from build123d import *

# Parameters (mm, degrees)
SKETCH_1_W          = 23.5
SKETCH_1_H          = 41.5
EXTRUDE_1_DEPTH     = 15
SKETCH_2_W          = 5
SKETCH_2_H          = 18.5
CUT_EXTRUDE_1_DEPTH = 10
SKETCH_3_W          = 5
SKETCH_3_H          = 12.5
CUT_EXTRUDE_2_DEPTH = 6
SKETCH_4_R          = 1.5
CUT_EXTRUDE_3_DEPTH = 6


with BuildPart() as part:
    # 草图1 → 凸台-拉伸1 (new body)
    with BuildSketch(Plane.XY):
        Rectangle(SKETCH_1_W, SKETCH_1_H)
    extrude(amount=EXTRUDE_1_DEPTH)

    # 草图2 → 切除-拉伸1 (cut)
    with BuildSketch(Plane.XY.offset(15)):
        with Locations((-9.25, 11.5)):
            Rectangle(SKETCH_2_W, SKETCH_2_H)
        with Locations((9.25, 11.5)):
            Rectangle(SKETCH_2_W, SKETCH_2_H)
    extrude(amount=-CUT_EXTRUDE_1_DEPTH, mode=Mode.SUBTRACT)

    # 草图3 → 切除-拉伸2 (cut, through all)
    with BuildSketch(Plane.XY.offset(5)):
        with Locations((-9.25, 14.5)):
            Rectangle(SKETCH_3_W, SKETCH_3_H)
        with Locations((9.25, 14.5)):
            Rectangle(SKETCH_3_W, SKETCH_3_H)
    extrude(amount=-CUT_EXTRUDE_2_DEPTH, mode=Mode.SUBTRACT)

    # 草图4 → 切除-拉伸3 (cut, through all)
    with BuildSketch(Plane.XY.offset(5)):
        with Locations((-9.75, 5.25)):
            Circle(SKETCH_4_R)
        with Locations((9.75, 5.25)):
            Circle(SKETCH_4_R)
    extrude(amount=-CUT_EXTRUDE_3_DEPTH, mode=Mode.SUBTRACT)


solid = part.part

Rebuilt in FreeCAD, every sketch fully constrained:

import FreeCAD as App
import Part
import Sketcher
Q = App.Units.Quantity


def add_polygon(sketch, points):
    """Adds a closed chain of lines whose ends are joined by coincident constraints."""
    first, n = sketch.GeometryCount, len(points)
    for a, b in zip(points, points[1:] + points[:1]):
        sketch.addGeometry(Part.LineSegment(App.Vector(*a, 0), App.Vector(*b, 0)), False)
    for i in range(n):
        sketch.addConstraint(Sketcher.Constraint("Coincident", first + i, 2, first + (i + 1) % n, 1))

doc = App.newDocument("Part")
body = doc.addObject("PartDesign::Body", "Body")

sketch1 = doc.addObject("Sketcher::SketchObject", "Sketch")
body.addObject(sketch1)
sketch1.AttachmentSupport = (doc.XY_Plane, [""])
sketch1.MapMode = "FlatFace"
add_polygon(sketch1, [(-12, 21), (-12, -21), (12, -21), (12, 21)])
sketch1.addConstraint([
    Sketcher.Constraint("Vertical", 0),
    Sketcher.Constraint("Horizontal", 1),
    Sketcher.Constraint("Vertical", 2),
    Sketcher.Constraint("Horizontal", 3),
    Sketcher.Constraint("Symmetric", 0, 2, 2, 2, -1, 1),
    Sketcher.Constraint("DistanceX", 1, 1, 1, 2, Q("23.5 mm")),
    Sketcher.Constraint("DistanceY", 0, 2, 0, 1, Q("41.5 mm")),
])
pad1 = doc.addObject("PartDesign::Pad", "Pad")
body.addObject(pad1)
pad1.Profile = sketch1
pad1.Length = 15

sketch2 = doc.addObject("Sketcher::SketchObject", "Sketch001")
body.addObject(sketch2)
sketch2.AttachmentSupport = (doc.XY_Plane, [""])
sketch2.MapMode = "FlatFace"
sketch2.AttachmentOffset = App.Placement(App.Vector(0, 0, 15), App.Rotation())
add_polygon(sketch2, [(-12, 21), (-12, 2), (-7, 2), (-7, 21)])
add_polygon(sketch2, [(7, 21), (7, 2), (12, 2), (12, 21)])
sketch2.addConstraint([
    Sketcher.Constraint("Vertical", 0),
    Sketcher.Constraint("Horizontal", 1),
    Sketcher.Constraint("Vertical", 2),
    Sketcher.Constraint("Horizontal", 3),
    Sketcher.Constraint("Vertical", 4),
    Sketcher.Constraint("Horizontal", 5),
    Sketcher.Constraint("Vertical", 6),
    Sketcher.Constraint("Horizontal", 7),
    Sketcher.Constraint("Symmetric", 1, 2, 4, 2, -2),
    Sketcher.Constraint("Symmetric", 3, 2, 6, 2, -2),
    Sketcher.Constraint("DistanceX", 1, 1, 1, 2, Q("5 mm")),
    Sketcher.Constraint("DistanceY", 0, 2, 0, 1, Q("18.5 mm")),
    Sketcher.Constraint("DistanceX", 1, 2, 4, 2, Q("13.5 mm")),
    Sketcher.Constraint("DistanceY", -1, 1, 0, 2, Q("2.25 mm")),
])
pocket1 = doc.addObject("PartDesign::Pocket", "Pocket")
body.addObject(pocket1)
pocket1.Profile = sketch2
pocket1.Length = 10

sketch3 = doc.addObject("Sketcher::SketchObject", "Sketch002")
body.addObject(sketch3)
sketch3.AttachmentSupport = (doc.XY_Plane, [""])
sketch3.MapMode = "FlatFace"
sketch3.AttachmentOffset = App.Placement(App.Vector(0, 0, 5), App.Rotation())
add_polygon(sketch3, [(-12, 21), (-12, 8), (-7, 8), (-7, 21)])
add_polygon(sketch3, [(7, 21), (7, 8), (12, 8), (12, 21)])
sketch3.addConstraint([
    Sketcher.Constraint("Vertical", 0),
    Sketcher.Constraint("Horizontal", 1),
    Sketcher.Constraint("Vertical", 2),
    Sketcher.Constraint("Horizontal", 3),
    Sketcher.Constraint("Vertical", 4),
    Sketcher.Constraint("Horizontal", 5),
    Sketcher.Constraint("Vertical", 6),
    Sketcher.Constraint("Horizontal", 7),
    Sketcher.Constraint("Symmetric", 1, 2, 4, 2, -2),
    Sketcher.Constraint("Symmetric", 3, 2, 6, 2, -2),
    Sketcher.Constraint("DistanceX", 1, 1, 1, 2, Q("5 mm")),
    Sketcher.Constraint("DistanceY", 0, 2, 0, 1, Q("12.5 mm")),
    Sketcher.Constraint("DistanceX", 1, 2, 4, 2, Q("13.5 mm")),
    Sketcher.Constraint("DistanceY", -1, 1, 0, 2, Q("8.25 mm")),
])
pocket2 = doc.addObject("PartDesign::Pocket", "Pocket001")
body.addObject(pocket2)
pocket2.Profile = sketch3
pocket2.Type = "ThroughAll"

sketch4 = doc.addObject("Sketcher::SketchObject", "Sketch003")
body.addObject(sketch4)
sketch4.AttachmentSupport = (doc.XY_Plane, [""])
sketch4.MapMode = "FlatFace"
sketch4.AttachmentOffset = App.Placement(App.Vector(0, 0, 5), App.Rotation())
sketch4.addGeometry([
    Part.Circle(App.Vector(-9.8, 5.2, 0), App.Vector(0, 0, 1), 1.5),
    Part.Circle(App.Vector(9.8, 5.2, 0), App.Vector(0, 0, 1), 1.5),
], False)
sketch4.addConstraint([
    Sketcher.Constraint("Equal", 0, 1),
    Sketcher.Constraint("Symmetric", 0, 3, 1, 3, -2),
    Sketcher.Constraint("Diameter", 0, Q("3 mm")),
    Sketcher.Constraint("DistanceX", 0, 3, 1, 3, Q("19.5 mm")),
    Sketcher.Constraint("DistanceY", -1, 1, 0, 3, Q("5.25 mm")),
])
pocket3 = doc.addObject("PartDesign::Pocket", "Pocket002")
body.addObject(pocket3)
pocket3.Profile = sketch4
pocket3.Type = "ThroughAll"

doc.recompute()
